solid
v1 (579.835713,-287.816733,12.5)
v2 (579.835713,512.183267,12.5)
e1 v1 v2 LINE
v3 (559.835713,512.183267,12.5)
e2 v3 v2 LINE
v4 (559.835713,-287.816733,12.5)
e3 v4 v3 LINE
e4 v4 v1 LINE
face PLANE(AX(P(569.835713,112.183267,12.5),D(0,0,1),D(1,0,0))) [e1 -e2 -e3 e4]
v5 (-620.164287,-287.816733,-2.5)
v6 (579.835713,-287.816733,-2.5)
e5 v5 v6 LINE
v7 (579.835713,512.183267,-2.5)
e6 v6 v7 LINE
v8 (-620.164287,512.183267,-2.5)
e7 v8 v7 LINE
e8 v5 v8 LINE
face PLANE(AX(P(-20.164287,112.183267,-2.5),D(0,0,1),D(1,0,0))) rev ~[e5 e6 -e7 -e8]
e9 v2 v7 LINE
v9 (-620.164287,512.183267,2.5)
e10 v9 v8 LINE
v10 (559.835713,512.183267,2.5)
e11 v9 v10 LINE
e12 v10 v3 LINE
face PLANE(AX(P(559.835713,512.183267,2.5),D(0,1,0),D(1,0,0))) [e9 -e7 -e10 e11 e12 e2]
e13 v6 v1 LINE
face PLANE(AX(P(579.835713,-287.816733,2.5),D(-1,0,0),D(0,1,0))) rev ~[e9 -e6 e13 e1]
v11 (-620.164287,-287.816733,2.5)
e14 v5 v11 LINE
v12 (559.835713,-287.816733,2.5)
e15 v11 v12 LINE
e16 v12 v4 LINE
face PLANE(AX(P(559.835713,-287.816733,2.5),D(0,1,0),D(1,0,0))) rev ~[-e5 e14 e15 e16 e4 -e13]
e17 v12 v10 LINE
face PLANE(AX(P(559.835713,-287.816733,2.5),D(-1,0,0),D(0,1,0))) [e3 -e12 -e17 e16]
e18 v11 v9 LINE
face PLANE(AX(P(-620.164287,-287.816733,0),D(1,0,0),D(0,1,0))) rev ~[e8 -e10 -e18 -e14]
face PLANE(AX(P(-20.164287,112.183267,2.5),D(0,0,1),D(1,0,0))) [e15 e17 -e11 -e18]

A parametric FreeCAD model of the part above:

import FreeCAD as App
import Part
import Sketcher

V = App.Vector
Q = App.Units.Quantity


def add_polygon(sketch, points):
    """Adds a closed chain of lines whose ends are joined by coincident constraints."""
    first, n = sketch.GeometryCount, len(points)
    for a, b in zip(points, points[1:] + points[:1]):
        sketch.addGeometry(Part.LineSegment(App.Vector(*a, 0), App.Vector(*b, 0)), False)
    for i in range(n):
        sketch.addConstraint(Sketcher.Constraint("Coincident", first + i, 2, first + (i + 1) % n, 1))

doc = App.newDocument("Part")
body = doc.addObject("PartDesign::Body", "Body")

# Sketch on XY plane
sketch1 = doc.addObject("Sketcher::SketchObject", "Sketch")
body.addObject(sketch1)
sketch1.AttachmentSupport = (doc.XY_Plane, [""])
sketch1.MapMode = "FlatFace"
add_polygon(sketch1, [(-620.164287, 512.183267), (-620.164287, -287.816733), (579.835713, -287.816733), (579.835713, 512.183267)])  # lines 0-3
sketch1.addConstraint(Sketcher.Constraint("Vertical", 0))
sketch1.addConstraint(Sketcher.Constraint("Horizontal", 1))
sketch1.addConstraint(Sketcher.Constraint("Vertical", 2))
sketch1.addConstraint(Sketcher.Constraint("Horizontal", 3))
sketch1.addConstraint(Sketcher.Constraint("DistanceX", 1, 1, 1, 2, Q("1200 mm")))
sketch1.addConstraint(Sketcher.Constraint("DistanceY", 0, 2, 0, 1, Q("800 mm")))
sketch1.addConstraint(Sketcher.Constraint("DistanceX", 0, 2, -1, 1, Q("620.164287 mm")))
sketch1.addConstraint(Sketcher.Constraint("DistanceY", 0, 2, -1, 1, Q("287.816733 mm")))
pad1 = doc.addObject("PartDesign::Pad", "Pad")
body.addObject(pad1)
pad1.Profile = sketch1
pad1.Length = 5
pad1.Midplane = True

# Sketch on XY plane
sketch2 = doc.addObject("Sketcher::SketchObject", "Sketch001")
body.addObject(sketch2)
sketch2.AttachmentSupport = (doc.XY_Plane, [""])
sketch2.MapMode = "FlatFace"
sketch2.AttachmentOffset = App.Placement(V(0, 0, 2.5), App.Rotation())
add_polygon(sketch2, [(559.835713, 512.183267), (559.835713, -287.816733), (579.835713, -287.816733), (579.835713, 512.183267)])  # lines 0-3
sketch2.addConstraint(Sketcher.Constraint("Vertical", 0))
sketch2.addConstraint(Sketcher.Constraint("Horizontal", 1))
sketch2.addConstraint(Sketcher.Constraint("Vertical", 2))
sketch2.addConstraint(Sketcher.Constraint("Horizontal", 3))
sketch2.addConstraint(Sketcher.Constraint("DistanceX", 1, 1, 1, 2, Q("20 mm")))
sketch2.addConstraint(Sketcher.Constraint("DistanceY", 0, 2, 0, 1, Q("800 mm")))
sketch2.addConstraint(Sketcher.Constraint("DistanceX", -1, 1, 0, 2, Q("559.835713 mm")))
sketch2.addConstraint(Sketcher.Constraint("DistanceY", 0, 2, -1, 1, Q("287.816733 mm")))
pad2 = doc.addObject("PartDesign::Pad", "Pad001")
body.addObject(pad2)
pad2.Profile = sketch2
pad2.Length = 10

doc.recompute()
